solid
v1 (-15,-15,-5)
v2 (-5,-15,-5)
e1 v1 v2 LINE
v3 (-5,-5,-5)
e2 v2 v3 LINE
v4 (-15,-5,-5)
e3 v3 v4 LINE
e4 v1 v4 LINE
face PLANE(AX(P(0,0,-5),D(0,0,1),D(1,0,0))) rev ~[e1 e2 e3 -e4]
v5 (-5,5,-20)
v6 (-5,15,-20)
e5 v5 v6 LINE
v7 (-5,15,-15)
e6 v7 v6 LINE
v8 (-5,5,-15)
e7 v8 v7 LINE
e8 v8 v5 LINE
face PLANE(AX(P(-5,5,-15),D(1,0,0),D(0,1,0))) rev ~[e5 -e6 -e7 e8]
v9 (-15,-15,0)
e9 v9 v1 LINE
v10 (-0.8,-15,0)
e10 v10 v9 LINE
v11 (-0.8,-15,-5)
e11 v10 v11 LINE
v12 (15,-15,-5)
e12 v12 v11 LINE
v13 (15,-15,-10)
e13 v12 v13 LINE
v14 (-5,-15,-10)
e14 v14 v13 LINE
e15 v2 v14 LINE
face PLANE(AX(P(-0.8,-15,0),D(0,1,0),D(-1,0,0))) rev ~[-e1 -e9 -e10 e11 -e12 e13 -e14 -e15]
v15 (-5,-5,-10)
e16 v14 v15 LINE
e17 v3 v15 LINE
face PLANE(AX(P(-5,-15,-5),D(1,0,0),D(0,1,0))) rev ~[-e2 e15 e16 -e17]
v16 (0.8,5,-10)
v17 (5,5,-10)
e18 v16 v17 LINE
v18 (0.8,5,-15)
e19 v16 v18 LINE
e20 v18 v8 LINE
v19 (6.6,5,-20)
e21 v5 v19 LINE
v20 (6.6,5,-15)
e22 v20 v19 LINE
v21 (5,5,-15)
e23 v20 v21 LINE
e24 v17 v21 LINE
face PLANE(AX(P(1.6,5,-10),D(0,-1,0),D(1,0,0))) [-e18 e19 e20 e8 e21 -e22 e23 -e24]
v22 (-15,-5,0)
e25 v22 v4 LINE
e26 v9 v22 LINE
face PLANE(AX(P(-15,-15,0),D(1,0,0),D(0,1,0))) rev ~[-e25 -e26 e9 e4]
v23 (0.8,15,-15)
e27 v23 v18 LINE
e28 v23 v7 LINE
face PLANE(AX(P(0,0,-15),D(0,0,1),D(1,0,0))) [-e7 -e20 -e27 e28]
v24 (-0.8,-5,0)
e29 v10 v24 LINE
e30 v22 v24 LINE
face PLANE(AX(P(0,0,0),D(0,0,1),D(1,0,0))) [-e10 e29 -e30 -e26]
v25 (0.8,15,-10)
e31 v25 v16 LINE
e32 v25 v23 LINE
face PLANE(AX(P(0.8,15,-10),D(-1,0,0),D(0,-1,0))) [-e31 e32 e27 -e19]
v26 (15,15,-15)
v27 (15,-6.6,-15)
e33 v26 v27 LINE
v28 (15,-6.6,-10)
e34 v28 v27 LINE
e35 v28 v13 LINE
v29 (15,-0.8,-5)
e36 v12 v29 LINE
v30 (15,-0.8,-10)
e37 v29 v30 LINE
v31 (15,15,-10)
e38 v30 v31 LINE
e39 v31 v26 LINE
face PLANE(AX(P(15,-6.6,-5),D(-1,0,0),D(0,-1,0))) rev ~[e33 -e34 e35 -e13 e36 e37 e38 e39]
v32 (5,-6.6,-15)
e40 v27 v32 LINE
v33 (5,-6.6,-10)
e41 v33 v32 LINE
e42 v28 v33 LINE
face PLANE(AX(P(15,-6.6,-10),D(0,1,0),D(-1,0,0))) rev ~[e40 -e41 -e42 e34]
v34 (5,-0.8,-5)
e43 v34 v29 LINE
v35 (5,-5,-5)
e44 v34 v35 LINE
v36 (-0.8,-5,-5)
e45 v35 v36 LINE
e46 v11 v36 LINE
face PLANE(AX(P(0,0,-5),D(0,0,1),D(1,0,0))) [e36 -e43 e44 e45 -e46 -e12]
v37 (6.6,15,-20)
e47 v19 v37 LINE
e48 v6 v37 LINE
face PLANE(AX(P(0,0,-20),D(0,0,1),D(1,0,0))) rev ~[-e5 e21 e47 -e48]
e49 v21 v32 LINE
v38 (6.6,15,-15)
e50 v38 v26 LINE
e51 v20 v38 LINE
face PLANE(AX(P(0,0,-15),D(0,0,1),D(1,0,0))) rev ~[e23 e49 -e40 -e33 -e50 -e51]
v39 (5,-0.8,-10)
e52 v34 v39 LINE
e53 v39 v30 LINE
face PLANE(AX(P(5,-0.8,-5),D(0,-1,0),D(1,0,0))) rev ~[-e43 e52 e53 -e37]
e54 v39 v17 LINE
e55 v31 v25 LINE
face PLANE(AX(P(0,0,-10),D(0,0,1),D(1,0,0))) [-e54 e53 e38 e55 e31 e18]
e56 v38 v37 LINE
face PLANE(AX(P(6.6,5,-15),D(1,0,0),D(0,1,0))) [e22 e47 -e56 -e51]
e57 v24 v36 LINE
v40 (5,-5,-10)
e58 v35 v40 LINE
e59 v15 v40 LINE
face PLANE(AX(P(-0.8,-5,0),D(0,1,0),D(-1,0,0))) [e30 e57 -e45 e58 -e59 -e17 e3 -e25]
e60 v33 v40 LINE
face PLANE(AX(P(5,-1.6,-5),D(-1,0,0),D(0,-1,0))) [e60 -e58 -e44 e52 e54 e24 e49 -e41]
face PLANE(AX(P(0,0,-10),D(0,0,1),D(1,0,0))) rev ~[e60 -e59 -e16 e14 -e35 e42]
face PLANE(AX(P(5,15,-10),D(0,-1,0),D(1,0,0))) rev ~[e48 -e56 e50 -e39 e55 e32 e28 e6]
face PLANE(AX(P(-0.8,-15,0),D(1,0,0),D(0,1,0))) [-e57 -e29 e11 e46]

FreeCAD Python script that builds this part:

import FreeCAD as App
import Part
import Sketcher

V = App.Vector
Q = App.Units.Quantity

doc = App.newDocument("Part")
params = doc.addObject("Spreadsheet::Sheet", "Params")
for row, (alias, value) in enumerate([
    ("sketch1_height", "10 mm"),
    ("sketch1_width", "14.2 mm"),
    ("pad1_length", "5 mm"),
    ("sketch2_width", "10 mm"),
    ("sketch2_height", "14.2 mm"),
    ("pad2_length", "5 mm"),
    ("sketch3_width", "10 mm"),
    ("sketch3_width2", "14.2 mm"),
    ("sketch3_height", "21.6 mm"),
    ("pad3_length", "5 mm"),
    ("sketch4_height", "10 mm"),
    ("sketch4_width", "11.6 mm"),
    ("pad4_length", "5 mm"),
], start=1):
    params.set(f"A{row}", alias)
    params.set(f"B{row}", "=" + value)
    params.setAlias(f"B{row}", alias)

body = doc.addObject("PartDesign::Body", "Body")

# Sketch on XY plane
sketch1 = body.newObject("Sketcher::SketchObject", "Sketch")
sketch1.AttachmentSupport = (doc.getObject("XY_Plane"), [""])
sketch1.MapMode = "FlatFace"
sketch1.addGeometry(Part.LineSegment(V(-1, -15, 0), V(-1, -5, 0)), False)
sketch1.addGeometry(Part.LineSegment(V(-1, -5, 0), V(-15, -5, 0)), False)
sketch1.addGeometry(Part.LineSegment(V(-15, -5, 0), V(-15, -15, 0)), False)
sketch1.addGeometry(Part.LineSegment(V(-15, -15, 0), V(-1, -15, 0)), False)
sketch1.addConstraint(Sketcher.Constraint("Coincident", 0, 2, 1, 1))
sketch1.addConstraint(Sketcher.Constraint("Coincident", 1, 2, 2, 1))
sketch1.addConstraint(Sketcher.Constraint("Coincident", 2, 2, 3, 1))
sketch1.addConstraint(Sketcher.Constraint("Coincident", 3, 2, 0, 1))
sketch1.addConstraint(Sketcher.Constraint("Vertical", 0))
sketch1.addConstraint(Sketcher.Constraint("Horizontal", 1))
sketch1.addConstraint(Sketcher.Constraint("Vertical", 2))
sketch1.addConstraint(Sketcher.Constraint("Horizontal", 3))
sketch1.addConstraint(Sketcher.Constraint("DistanceY", 0, 1, 0, 2, Q("10 mm")))
sketch1.addConstraint(Sketcher.Constraint("DistanceX", 0, 2, -1, 1, Q("0.8 mm")))
sketch1.addConstraint(Sketcher.Constraint("DistanceX", 1, 2, 1, 1, Q("14.2 mm")))
sketch1.addConstraint(Sketcher.Constraint("DistanceY", 0, 2, -1, 1, Q("5 mm")))
sketch1.setExpression("Constraints[8]", "Params.sketch1_height")
sketch1.setExpression("Constraints[10]", "Params.sketch1_width")
pad1 = body.newObject("PartDesign::Pad", "Pad")
pad1.Profile = sketch1
pad1.setExpression("Length", "Params.pad1_length")
pad1.Reversed = True

# Sketch on XY plane
sketch2 = body.newObject("Sketcher::SketchObject", "Sketch001")
sketch2.AttachmentSupport = (doc.getObject("XY_Plane"), [""])
sketch2.MapMode = "FlatFace"
sketch2.AttachmentOffset = App.Placement(V(0, 0, -5), App.Rotation())
sketch2.addGeometry(Part.LineSegment(V(15, -15, 0), V(15, -0.8, 0)), False)
sketch2.addGeometry(Part.LineSegment(V(15, -0.8, 0), V(5, -0.8, 0)), False)
sketch2.addGeometry(Part.LineSegment(V(5, -0.8, 0), V(5, -5, 0)), False)
sketch2.addGeometry(Part.LineSegment(V(5, -5, 0), V(-5, -5, 0)), False)
sketch2.addGeometry(Part.LineSegment(V(-5, -5, 0), V(-5, -15, 0)), False)
sketch2.addGeometry(Part.LineSegment(V(-5, -15, 0), V(15, -15, 0)), False)
sketch2.addConstraint(Sketcher.Constraint("Coincident", 0, 2, 1, 1))
sketch2.addConstraint(Sketcher.Constraint("Coincident", 1, 2, 2, 1))
sketch2.addConstraint(Sketcher.Constraint("Coincident", 2, 2, 3, 1))
sketch2.addConstraint(Sketcher.Constraint("Coincident", 3, 2, 4, 1))
sketch2.addConstraint(Sketcher.Constraint("Coincident", 4, 2, 5, 1))
sketch2.addConstraint(Sketcher.Constraint("Coincident", 5, 2, 0, 1))
sketch2.addConstraint(Sketcher.Constraint("Vertical", 0))
sketch2.addConstraint(Sketcher.Constraint("Horizontal", 1))
sketch2.addConstraint(Sketcher.Constraint("Vertical", 2))
sketch2.addConstraint(Sketcher.Constraint("Horizontal", 3))
sketch2.addConstraint(Sketcher.Constraint("Vertical", 4))
sketch2.addConstraint(Sketcher.Constraint("Horizontal", 5))
sketch2.addConstraint(Sketcher.Constraint("Equal", 1, 3))
sketch2.addConstraint(Sketcher.Constraint("Equal", 3, 4))
sketch2.addConstraint(Sketcher.Constraint("DistanceX", 1, 2, 1, 1, Q("10 mm")))
sketch2.addConstraint(Sketcher.Constraint("DistanceY", 0, 2, -1, 1, Q("0.8 mm")))
sketch2.addConstraint(Sketcher.Constraint("DistanceY", 0, 1, 0, 2, Q("14.2 mm")))
sketch2.addConstraint(Sketcher.Constraint("DistanceX", -1, 1, 0, 2, Q("15 mm")))
sketch2.setExpression("Constraints[14]", "Params.sketch2_width")
sketch2.setExpression("Constraints[16]", "Params.sketch2_height")
pad2 = body.newObject("PartDesign::Pad", "Pad001")
pad2.Profile = sketch2
pad2.setExpression("Length", "Params.pad2_length")
pad2.Reversed = True

# Sketch on XY plane
sketch3 = body.newObject("Sketcher::SketchObject", "Sketch002")
sketch3.AttachmentSupport = (doc.getObject("XY_Plane"), [""])
sketch3.MapMode = "FlatFace"
sketch3.AttachmentOffset = App.Placement(V(0, 0, -10), App.Rotation())
sketch3.addGeometry(Part.LineSegment(V(5, -6.6, 0), V(15, -6.6, 0)), False)
sketch3.addGeometry(Part.LineSegment(V(15, -6.6, 0), V(15, 15, 0)), False)
sketch3.addGeometry(Part.LineSegment(V(15, 15, 0), V(0.8, 15, 0)), False)
sketch3.addGeometry(Part.LineSegment(V(0.8, 15, 0), V(0.8, 5, 0)), False)
sketch3.addGeometry(Part.LineSegment(V(0.8, 5, 0), V(5, 5, 0)), False)
sketch3.addGeometry(Part.LineSegment(V(5, 5, 0), V(5, -6.6, 0)), False)
sketch3.addConstraint(Sketcher.Constraint("Coincident", 0, 2, 1, 1))
sketch3.addConstraint(Sketcher.Constraint("Coincident", 1, 2, 2, 1))
sketch3.addConstraint(Sketcher.Constraint("Coincident", 2, 2, 3, 1))
sketch3.addConstraint(Sketcher.Constraint("Coincident", 3, 2, 4, 1))
sketch3.addConstraint(Sketcher.Constraint("Coincident", 4, 2, 5, 1))
sketch3.addConstraint(Sketcher.Constraint("Coincident", 5, 2, 0, 1))
sketch3.addConstraint(Sketcher.Constraint("Horizontal", 0))
sketch3.addConstraint(Sketcher.Constraint("Vertical", 1))
sketch3.addConstraint(Sketcher.Constraint("Horizontal", 2))
sketch3.addConstraint(Sketcher.Constraint("Vertical", 3))
sketch3.addConstraint(Sketcher.Constraint("Horizontal", 4))
sketch3.addConstraint(Sketcher.Constraint("Vertical", 5))
sketch3.addConstraint(Sketcher.Constraint("Equal", 0, 3))
sketch3.addConstraint(Sketcher.Constraint("DistanceX", 0, 1, 0, 2, Q("10 mm")))
sketch3.addConstraint(Sketcher.Constraint("DistanceX", -1, 1, 2, 2, Q("0.8 mm")))
sketch3.addConstraint(Sketcher.Constraint("DistanceX", 2, 2, 2, 1, Q("14.2 mm")))
sketch3.addConstraint(Sketcher.Constraint("DistanceY", 1, 1, 1, 2, Q("21.6 mm")))
sketch3.addConstraint(Sketcher.Constraint("DistanceY", -1, 1, 1, 2, Q("15 mm")))
sketch3.setExpression("Constraints[13]", "Params.sketch3_width")
sketch3.setExpression("Constraints[15]", "Params.sketch3_width2")
sketch3.setExpression("Constraints[16]", "Params.sketch3_height")
pad3 = body.newObject("PartDesign::Pad", "Pad002")
pad3.Profile = sketch3
pad3.setExpression("Length", "Params.pad3_length")
pad3.Reversed = True

# Sketch on XY plane
sketch4 = body.newObject("Sketcher::SketchObject", "Sketch003")
sketch4.AttachmentSupport = (doc.getObject("XY_Plane"), [""])
sketch4.MapMode = "FlatFace"
sketch4.AttachmentOffset = App.Placement(V(0, 0, -15), App.Rotation())
sketch4.addGeometry(Part.LineSegment(V(7, 5, 0), V(7, 15, 0)), False)
sketch4.addGeometry(Part.LineSegment(V(7, 15, 0), V(-5, 15, 0)), False)
sketch4.addGeometry(Part.LineSegment(V(-5, 15, 0), V(-5, 5, 0)), False)
sketch4.addGeometry(Part.LineSegment(V(-5, 5, 0), V(7, 5, 0)), False)
sketch4.addConstraint(Sketcher.Constraint("Coincident", 0, 2, 1, 1))
sketch4.addConstraint(Sketcher.Constraint("Coincident", 1, 2, 2, 1))
sketch4.addConstraint(Sketcher.Constraint("Coincident", 2, 2, 3, 1))
sketch4.addConstraint(Sketcher.Constraint("Coincident", 3, 2, 0, 1))
sketch4.addConstraint(Sketcher.Constraint("Vertical", 0))
sketch4.addConstraint(Sketcher.Constraint("Horizontal", 1))
sketch4.addConstraint(Sketcher.Constraint("Vertical", 2))
sketch4.addConstraint(Sketcher.Constraint("Horizontal", 3))
sketch4.addConstraint(Sketcher.Constraint("DistanceY", 0, 1, 0, 2, Q("10 mm")))
sketch4.addConstraint(Sketcher.Constraint("DistanceX", 1, 2, 1, 1, Q("11.6 mm")))
sketch4.addConstraint(Sketcher.Constraint("DistanceY", -1, 1, 0, 2, Q("15 mm")))
sketch4.addConstraint(Sketcher.Constraint("DistanceX", 1, 2, -1, 1, Q("5 mm")))
sketch4.setExpression("Constraints[8]", "Params.sketch4_height")
sketch4.setExpression("Constraints[9]", "Params.sketch4_width")
pad4 = body.newObject("PartDesign::Pad", "Pad003")
pad4.Profile = sketch4
pad4.setExpression("Length", "Params.pad4_length")
pad4.Reversed = True

doc.recompute()
